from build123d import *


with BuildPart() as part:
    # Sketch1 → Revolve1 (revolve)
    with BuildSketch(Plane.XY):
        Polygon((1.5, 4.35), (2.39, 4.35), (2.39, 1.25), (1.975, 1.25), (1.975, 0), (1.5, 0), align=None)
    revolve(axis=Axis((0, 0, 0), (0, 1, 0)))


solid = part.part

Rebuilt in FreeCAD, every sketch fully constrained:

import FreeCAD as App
import Part
import Sketcher
from FreeCAD import Vector


def add_polygon(sketch, points):
    """Adds a closed chain of lines whose ends are joined by coincident constraints."""
    first, n = sketch.GeometryCount, len(points)
    for a, b in zip(points, points[1:] + points[:1]):
        sketch.addGeometry(Part.LineSegment(App.Vector(*a, 0), App.Vector(*b, 0)), False)
    for i in range(n):
        sketch.addConstraint(Sketcher.Constraint("Coincident", first + i, 2, first + (i + 1) % n, 1))

doc = App.newDocument("Part")
body = doc.addObject("PartDesign::Body", "Body")

sketch1 = doc.addObject("Sketcher::SketchObject", "Sketch")
body.addObject(sketch1)
sketch1.AttachmentSupport = (doc.XY_Plane, [""])
sketch1.MapMode = "FlatFace"
add_polygon(sketch1, [(2.39, 4.35), (1.5, 4.35), (1.5, 0), (1.98, 0), (1.98, 1.25), (2.39, 1.25)])
sketch1.addConstraint([
    Sketcher.Constraint("Horizontal", 0),
    Sketcher.Constraint("Vertical", 1),
    Sketcher.Constraint("Horizontal", 2),
    Sketcher.Constraint("Vertical", 3),
    Sketcher.Constraint("Horizontal", 4),
    Sketcher.Constraint("Vertical", 5),
    Sketcher.Constraint("PointOnObject", 1, 2, -1),
    Sketcher.Constraint("DistanceY", 5, 1, 5, 2, 3.1),
    Sketcher.Constraint("DistanceX", 0, 2, 0, 1, 0.89),
    Sketcher.Constraint("DistanceY", 1, 2, 1, 1, 4.35),
    Sketcher.Constraint("DistanceX", -1, 1, 0, 2, 1.5),
    Sketcher.Constraint("DistanceX", 2, 1, 2, 2, 0.475),
])
revolution = doc.addObject("PartDesign::Revolution", "Revolution")
body.addObject(revolution)
revolution.Profile = sketch1
revolution.ReferenceAxis = (sketch1, ["V_Axis"])
revolution.Angle = 360

doc.recompute()
